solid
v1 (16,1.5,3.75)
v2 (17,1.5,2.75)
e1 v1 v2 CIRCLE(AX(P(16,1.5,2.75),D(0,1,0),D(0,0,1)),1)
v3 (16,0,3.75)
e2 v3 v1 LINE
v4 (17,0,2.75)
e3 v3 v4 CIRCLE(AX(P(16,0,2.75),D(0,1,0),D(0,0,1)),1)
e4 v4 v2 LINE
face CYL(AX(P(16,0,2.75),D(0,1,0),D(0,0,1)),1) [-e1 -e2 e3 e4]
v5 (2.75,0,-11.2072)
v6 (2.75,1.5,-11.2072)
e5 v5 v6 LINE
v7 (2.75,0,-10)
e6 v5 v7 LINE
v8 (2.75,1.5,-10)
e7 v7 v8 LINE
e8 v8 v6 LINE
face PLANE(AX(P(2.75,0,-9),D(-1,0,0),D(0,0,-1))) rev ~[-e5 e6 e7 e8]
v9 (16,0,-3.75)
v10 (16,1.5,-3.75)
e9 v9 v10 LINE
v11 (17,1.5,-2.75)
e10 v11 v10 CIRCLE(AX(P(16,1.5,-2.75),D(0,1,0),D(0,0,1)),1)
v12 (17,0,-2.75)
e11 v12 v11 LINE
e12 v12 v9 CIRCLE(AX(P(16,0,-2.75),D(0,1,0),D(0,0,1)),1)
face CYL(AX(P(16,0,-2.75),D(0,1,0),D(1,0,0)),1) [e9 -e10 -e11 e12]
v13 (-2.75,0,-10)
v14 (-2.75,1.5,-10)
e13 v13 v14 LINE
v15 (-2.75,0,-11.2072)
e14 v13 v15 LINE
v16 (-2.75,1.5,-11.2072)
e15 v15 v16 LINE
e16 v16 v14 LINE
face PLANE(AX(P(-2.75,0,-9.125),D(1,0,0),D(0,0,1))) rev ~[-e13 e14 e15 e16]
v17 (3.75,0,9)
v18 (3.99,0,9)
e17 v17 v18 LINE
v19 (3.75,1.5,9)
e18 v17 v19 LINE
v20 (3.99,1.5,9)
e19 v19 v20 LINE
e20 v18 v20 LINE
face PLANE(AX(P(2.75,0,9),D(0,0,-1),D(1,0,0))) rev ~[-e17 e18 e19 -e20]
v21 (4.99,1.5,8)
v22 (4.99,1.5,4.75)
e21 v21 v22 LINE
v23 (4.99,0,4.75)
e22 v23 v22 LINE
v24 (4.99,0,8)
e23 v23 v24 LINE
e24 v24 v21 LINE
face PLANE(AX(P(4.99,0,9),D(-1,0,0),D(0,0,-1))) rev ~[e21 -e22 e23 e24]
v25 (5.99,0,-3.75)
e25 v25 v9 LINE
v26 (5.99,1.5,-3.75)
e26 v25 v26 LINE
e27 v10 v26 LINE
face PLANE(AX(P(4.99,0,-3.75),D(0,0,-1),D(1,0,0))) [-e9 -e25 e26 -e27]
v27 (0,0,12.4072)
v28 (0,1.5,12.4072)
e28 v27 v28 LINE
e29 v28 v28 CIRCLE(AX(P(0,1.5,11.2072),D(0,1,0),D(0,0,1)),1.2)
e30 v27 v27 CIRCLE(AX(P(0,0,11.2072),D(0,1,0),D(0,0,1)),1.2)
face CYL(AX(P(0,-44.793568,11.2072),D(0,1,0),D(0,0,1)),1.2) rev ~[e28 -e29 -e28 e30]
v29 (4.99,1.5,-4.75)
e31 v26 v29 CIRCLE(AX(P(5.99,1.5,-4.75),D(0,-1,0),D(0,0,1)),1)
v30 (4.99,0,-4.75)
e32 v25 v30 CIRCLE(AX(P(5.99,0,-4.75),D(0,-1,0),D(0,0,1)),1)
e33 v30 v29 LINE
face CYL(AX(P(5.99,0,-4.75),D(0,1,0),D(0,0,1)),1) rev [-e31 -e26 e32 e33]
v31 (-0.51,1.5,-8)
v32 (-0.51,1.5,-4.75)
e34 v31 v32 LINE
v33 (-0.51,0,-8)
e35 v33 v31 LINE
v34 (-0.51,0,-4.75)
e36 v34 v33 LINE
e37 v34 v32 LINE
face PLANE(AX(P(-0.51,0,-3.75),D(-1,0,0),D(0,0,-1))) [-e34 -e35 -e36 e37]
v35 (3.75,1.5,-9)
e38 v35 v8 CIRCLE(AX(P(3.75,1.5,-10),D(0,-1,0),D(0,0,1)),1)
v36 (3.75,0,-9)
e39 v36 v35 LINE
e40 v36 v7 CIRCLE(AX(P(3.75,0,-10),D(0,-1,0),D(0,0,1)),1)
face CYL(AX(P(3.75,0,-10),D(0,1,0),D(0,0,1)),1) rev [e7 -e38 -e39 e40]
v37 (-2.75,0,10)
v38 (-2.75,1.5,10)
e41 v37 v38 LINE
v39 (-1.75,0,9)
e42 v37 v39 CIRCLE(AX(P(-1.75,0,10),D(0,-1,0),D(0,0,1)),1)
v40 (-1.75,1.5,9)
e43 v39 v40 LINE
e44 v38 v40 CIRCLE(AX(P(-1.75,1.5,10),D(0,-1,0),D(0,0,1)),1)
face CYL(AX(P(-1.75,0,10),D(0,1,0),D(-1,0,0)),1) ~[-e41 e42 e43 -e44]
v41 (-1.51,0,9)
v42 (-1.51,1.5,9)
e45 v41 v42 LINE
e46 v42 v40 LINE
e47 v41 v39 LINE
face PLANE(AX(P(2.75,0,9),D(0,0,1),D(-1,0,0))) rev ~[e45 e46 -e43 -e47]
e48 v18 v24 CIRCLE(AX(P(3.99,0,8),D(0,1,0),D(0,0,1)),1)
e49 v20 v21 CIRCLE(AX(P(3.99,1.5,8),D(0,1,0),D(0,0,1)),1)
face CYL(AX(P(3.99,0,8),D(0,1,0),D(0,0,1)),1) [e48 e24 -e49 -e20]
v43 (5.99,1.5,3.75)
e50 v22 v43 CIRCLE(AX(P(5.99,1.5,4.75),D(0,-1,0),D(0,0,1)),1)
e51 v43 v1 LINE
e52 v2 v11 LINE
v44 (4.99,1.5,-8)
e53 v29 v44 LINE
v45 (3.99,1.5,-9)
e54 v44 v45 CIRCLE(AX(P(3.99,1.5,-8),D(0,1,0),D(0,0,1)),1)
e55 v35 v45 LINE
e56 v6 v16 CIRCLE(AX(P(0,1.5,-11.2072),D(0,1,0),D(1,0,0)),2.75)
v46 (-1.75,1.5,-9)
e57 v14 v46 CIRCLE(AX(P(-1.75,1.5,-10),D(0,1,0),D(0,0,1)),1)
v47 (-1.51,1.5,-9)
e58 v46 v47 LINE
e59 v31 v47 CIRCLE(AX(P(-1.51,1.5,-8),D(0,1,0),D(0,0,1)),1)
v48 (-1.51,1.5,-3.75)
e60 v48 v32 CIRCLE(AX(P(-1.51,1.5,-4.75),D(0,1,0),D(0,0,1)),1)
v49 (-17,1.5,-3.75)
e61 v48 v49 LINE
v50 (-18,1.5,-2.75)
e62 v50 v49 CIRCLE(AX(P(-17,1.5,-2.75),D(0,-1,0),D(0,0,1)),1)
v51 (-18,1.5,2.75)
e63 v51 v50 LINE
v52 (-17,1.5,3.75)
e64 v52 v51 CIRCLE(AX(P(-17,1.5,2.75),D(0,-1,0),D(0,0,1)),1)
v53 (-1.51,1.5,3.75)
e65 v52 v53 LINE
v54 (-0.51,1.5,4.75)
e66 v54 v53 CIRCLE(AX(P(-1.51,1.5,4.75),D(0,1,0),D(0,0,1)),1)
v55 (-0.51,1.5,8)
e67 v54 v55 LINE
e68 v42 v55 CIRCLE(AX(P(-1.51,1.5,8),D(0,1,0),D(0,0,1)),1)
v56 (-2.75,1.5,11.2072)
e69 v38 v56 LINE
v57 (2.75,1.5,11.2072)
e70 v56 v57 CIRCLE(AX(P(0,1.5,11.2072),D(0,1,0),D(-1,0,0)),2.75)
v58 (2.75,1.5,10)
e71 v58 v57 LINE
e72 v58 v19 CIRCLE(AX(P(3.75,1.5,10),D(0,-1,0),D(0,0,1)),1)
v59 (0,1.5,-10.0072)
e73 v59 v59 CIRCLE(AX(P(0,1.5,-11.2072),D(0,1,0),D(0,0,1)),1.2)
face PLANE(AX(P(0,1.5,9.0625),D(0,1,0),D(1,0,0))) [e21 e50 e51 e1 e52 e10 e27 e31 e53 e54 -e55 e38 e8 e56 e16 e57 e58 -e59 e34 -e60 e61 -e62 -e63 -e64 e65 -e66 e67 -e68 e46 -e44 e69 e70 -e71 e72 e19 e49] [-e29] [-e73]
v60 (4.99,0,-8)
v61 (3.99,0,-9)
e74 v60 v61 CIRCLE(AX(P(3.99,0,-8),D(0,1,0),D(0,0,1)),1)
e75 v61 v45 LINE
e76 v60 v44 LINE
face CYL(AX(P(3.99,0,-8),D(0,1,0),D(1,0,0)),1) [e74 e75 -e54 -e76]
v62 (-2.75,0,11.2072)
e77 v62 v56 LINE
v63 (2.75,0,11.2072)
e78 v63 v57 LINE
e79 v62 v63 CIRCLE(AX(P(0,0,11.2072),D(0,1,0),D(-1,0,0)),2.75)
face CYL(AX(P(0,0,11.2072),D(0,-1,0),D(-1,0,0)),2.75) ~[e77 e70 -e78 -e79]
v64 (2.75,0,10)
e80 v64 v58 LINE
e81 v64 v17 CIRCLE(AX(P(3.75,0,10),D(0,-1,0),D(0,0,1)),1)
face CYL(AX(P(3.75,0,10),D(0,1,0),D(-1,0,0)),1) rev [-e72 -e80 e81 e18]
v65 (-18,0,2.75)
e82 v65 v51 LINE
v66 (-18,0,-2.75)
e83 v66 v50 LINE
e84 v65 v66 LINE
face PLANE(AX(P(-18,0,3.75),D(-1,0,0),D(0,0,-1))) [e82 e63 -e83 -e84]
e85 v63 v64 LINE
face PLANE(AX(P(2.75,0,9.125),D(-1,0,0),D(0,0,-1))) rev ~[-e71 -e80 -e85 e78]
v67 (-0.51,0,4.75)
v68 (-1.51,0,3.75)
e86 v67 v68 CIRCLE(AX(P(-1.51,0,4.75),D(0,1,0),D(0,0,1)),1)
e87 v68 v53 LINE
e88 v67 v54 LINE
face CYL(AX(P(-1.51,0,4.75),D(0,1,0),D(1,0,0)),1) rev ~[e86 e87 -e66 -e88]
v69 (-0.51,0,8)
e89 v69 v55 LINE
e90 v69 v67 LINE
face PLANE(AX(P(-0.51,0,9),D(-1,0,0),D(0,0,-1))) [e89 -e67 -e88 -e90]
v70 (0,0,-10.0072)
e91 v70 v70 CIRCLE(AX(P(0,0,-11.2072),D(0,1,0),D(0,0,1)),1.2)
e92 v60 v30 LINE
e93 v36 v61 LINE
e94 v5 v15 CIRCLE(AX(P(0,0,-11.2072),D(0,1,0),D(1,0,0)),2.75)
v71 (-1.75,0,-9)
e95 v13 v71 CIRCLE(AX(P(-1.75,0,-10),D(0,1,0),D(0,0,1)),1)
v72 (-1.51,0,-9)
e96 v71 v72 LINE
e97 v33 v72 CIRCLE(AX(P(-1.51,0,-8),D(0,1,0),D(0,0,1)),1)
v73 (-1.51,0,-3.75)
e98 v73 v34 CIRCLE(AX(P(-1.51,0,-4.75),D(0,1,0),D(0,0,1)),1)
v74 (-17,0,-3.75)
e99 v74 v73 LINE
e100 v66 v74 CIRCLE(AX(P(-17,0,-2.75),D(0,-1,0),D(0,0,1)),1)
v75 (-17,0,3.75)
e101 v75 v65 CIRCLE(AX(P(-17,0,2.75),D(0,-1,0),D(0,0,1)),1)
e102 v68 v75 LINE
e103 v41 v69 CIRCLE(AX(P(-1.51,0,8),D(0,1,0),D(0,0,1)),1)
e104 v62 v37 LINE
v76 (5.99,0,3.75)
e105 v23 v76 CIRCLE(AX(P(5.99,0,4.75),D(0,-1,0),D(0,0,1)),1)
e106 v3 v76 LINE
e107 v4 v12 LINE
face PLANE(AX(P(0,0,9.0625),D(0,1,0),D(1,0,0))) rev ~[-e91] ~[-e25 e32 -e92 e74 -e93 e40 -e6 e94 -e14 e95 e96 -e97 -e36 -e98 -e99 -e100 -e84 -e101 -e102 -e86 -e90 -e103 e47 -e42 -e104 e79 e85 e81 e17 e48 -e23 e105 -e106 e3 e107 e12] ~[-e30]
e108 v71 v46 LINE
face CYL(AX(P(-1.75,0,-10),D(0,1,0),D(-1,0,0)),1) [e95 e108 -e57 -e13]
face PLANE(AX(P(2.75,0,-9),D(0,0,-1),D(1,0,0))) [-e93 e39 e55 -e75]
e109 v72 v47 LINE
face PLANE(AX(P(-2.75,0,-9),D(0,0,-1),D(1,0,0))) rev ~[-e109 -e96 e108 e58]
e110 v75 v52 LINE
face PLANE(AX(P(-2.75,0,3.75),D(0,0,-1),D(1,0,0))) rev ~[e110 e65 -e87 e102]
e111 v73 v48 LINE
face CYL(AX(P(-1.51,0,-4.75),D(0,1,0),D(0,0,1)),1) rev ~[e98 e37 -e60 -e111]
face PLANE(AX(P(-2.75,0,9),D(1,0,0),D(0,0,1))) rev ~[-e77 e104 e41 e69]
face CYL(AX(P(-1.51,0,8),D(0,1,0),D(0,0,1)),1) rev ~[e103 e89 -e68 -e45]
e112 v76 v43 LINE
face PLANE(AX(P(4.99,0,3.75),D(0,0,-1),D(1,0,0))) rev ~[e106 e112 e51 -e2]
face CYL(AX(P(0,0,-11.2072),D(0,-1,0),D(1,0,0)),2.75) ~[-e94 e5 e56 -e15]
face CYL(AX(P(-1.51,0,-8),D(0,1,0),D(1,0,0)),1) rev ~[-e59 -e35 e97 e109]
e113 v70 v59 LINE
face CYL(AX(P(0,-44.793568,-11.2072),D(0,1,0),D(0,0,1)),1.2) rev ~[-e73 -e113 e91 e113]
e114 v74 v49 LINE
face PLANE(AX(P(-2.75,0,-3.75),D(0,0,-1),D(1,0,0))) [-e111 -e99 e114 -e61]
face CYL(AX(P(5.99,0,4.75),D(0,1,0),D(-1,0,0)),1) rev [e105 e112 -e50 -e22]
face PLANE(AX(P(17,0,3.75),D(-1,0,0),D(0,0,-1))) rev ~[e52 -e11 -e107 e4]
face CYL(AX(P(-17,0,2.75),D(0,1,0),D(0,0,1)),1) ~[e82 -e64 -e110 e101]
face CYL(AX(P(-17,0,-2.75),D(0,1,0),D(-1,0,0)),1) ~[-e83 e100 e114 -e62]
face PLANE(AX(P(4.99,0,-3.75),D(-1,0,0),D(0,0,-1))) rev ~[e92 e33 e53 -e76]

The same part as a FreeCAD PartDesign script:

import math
import FreeCAD as App
import Part
import Sketcher
from FreeCAD import Vector
Q = App.Units.Quantity


def edges_at(feature, points):
    """Names of the edges that pass closest to the given points."""
    edges = feature.Shape.Edges
    near = lambda p: min(range(len(edges)), key=lambda i: edges[i].distToShape(Part.Vertex(*p))[0])
    return sorted({f"Edge{near(p) + 1}" for p in points})

doc = App.newDocument("Part")
body = doc.addObject("PartDesign::Body", "Body")

# Sketch on XZ plane
sketch1 = doc.addObject("Sketcher::SketchObject", "Sketch")
body.addObject(sketch1)
sketch1.AttachmentSupport = (doc.XZ_Plane, [""])
sketch1.MapMode = "FlatFace"
sketch1.addGeometry([
    Part.LineSegment(Vector(-0.5, 3.8, 0), Vector(-0.5, 9, 0)),  # 0
    Part.LineSegment(Vector(-0.5, 9, 0), Vector(-2.8, 9, 0)),  # 1
    Part.LineSegment(Vector(-2.8, 9, 0), Vector(-2.8, 11.2, 0)),  # 2
    Part.ArcOfCircle(Part.Circle(Vector(0, 11.2, 0), Vector(0, 0, 1), 2.8), math.radians(0), math.radians(180)),  # 3
    Part.LineSegment(Vector(2.8, 11.2, 0), Vector(2.8, 9, 0)),  # 4
    Part.LineSegment(Vector(2.8, 9, 0), Vector(5, 9, 0)),  # 5
    Part.LineSegment(Vector(5, 9, 0), Vector(5, 3.8, 0)),  # 6
    Part.LineSegment(Vector(5, 3.8, 0), Vector(17, 3.8, 0)),  # 7
    Part.LineSegment(Vector(17, 3.8, 0), Vector(17, -3.8, 0)),  # 8
    Part.LineSegment(Vector(17, -3.8, 0), Vector(5, -3.8, 0)),  # 9
    Part.LineSegment(Vector(5, -3.8, 0), Vector(5, -9, 0)),  # 10
    Part.LineSegment(Vector(5, -9, 0), Vector(2.8, -9, 0)),  # 11
    Part.LineSegment(Vector(2.8, -9, 0), Vector(2.8, -11.2, 0)),  # 12
    Part.ArcOfCircle(Part.Circle(Vector(0, -11.2, 0), Vector(0, 0, 1), 2.8), math.radians(180), math.radians(360)),  # 13
    Part.LineSegment(Vector(-2.8, -11.2, 0), Vector(-2.8, -9, 0)),  # 14
    Part.LineSegment(Vector(-2.8, -9, 0), Vector(-0.5, -9, 0)),  # 15
    Part.LineSegment(Vector(-0.5, -9, 0), Vector(-0.5, -3.8, 0)),  # 16
    Part.LineSegment(Vector(-0.5, -3.8, 0), Vector(-18, -3.8, 0)),  # 17
    Part.LineSegment(Vector(-18, -3.8, 0), Vector(-18, 3.8, 0)),  # 18
    Part.LineSegment(Vector(-18, 3.8, 0), Vector(-0.5, 3.8, 0)),  # 19
], False)
sketch1.addConstraint([
    Sketcher.Constraint("Coincident", 0, 2, 1, 1),
    Sketcher.Constraint("Coincident", 1, 2, 2, 1),
    Sketcher.Constraint("Tangent", 2, 2, 3, 2),
    Sketcher.Constraint("Tangent", 3, 1, 4, 1),
    Sketcher.Constraint("Coincident", 4, 2, 5, 1),
    Sketcher.Constraint("Coincident", 5, 2, 6, 1),
    Sketcher.Constraint("Coincident", 6, 2, 7, 1),
    Sketcher.Constraint("Coincident", 7, 2, 8, 1),
    Sketcher.Constraint("Coincident", 8, 2, 9, 1),
    Sketcher.Constraint("Coincident", 9, 2, 10, 1),
    Sketcher.Constraint("Coincident", 10, 2, 11, 1),
    Sketcher.Constraint("Coincident", 11, 2, 12, 1),
    Sketcher.Constraint("Tangent", 12, 2, 13, 2),
    Sketcher.Constraint("Tangent", 13, 1, 14, 1),
    Sketcher.Constraint("Coincident", 14, 2, 15, 1),
    Sketcher.Constraint("Coincident", 15, 2, 16, 1),
    Sketcher.Constraint("Coincident", 16, 2, 17, 1),
    Sketcher.Constraint("Coincident", 17, 2, 18, 1),
    Sketcher.Constraint("Coincident", 18, 2, 19, 1),
    Sketcher.Constraint("Coincident", 19, 2, 0, 1),
    Sketcher.Constraint("Vertical", 0),
    Sketcher.Constraint("Horizontal", 1),
    Sketcher.Constraint("Vertical", 2),
    Sketcher.Constraint("Vertical", 4),
    Sketcher.Constraint("Horizontal", 5),
    Sketcher.Constraint("Vertical", 6),
    Sketcher.Constraint("Horizontal", 7),
    Sketcher.Constraint("Vertical", 8),
    Sketcher.Constraint("Horizontal", 9),
    Sketcher.Constraint("Vertical", 10),
    Sketcher.Constraint("Horizontal", 11),
    Sketcher.Constraint("Vertical", 12),
    Sketcher.Constraint("Vertical", 14),
    Sketcher.Constraint("Horizontal", 15),
    Sketcher.Constraint("Vertical", 16),
    Sketcher.Constraint("Horizontal", 17),
    Sketcher.Constraint("Vertical", 18),
    Sketcher.Constraint("Horizontal", 19),
    Sketcher.Constraint("Equal", 3, 13),
    Sketcher.Constraint("Symmetric", 3, 3, 13, 3, -1, 1),
    Sketcher.Constraint("Symmetric", 1, 2, 4, 2, -2),
    Sketcher.Constraint("Symmetric", 6, 2, 9, 2, -1),
    Sketcher.Constraint("Symmetric", 0, 2, 15, 2, -1),
    Sketcher.Constraint("Horizontal", 11, 2, 14, 2),
    Sketcher.Constraint("Horizontal", 9, 2, 16, 2),
    Sketcher.Constraint("Horizontal", 7, 2, 18, 2),
    Sketcher.Constraint("Equal", 1, 5),
    Sketcher.Constraint("Radius", 3, Q("2.75 mm")),
    Sketcher.Constraint("DistanceY", 8, 2, 8, 1, Q("7.5 mm")),
    Sketcher.Constraint("DistanceY", -1, 1, 0, 2, Q("9 mm")),
    Sketcher.Constraint("DistanceX", -1, 1, 7, 2, Q("17 mm")),
    Sketcher.Constraint("DistanceX", 17, 2, -1, 1, Q("18 mm")),
    Sketcher.Constraint("DistanceX", 1, 2, 1, 1, Q("2.24 mm")),
    Sketcher.Constraint("DistanceY", 2, 1, 2, 2, Q("2.2072 mm")),
])
pad1 = doc.addObject("PartDesign::Pad", "Pad")
body.addObject(pad1)
pad1.Profile = sketch1
pad1.Length = 1.5
pad1.Reversed = True

# Sketch on XZ plane
sketch2 = doc.addObject("Sketcher::SketchObject", "Sketch001")
body.addObject(sketch2)
sketch2.AttachmentSupport = (doc.XZ_Plane, [""])
sketch2.MapMode = "FlatFace"
sketch2.addGeometry([
    Part.Circle(Vector(0, -11.2, 0), Vector(0, 0, 1), 1.2),
    Part.Circle(Vector(0, 11.2, 0), Vector(0, 0, 1), 1.2),
], False)
sketch2.addConstraint([
    Sketcher.Constraint("Equal", 0, 1),
    Sketcher.Constraint("Symmetric", 0, 3, 1, 3, -1, 1),
    Sketcher.Constraint("PointOnObject", 0, 3, -2),
    Sketcher.Constraint("Diameter", 0, Q("2.4 mm")),
    Sketcher.Constraint("DistanceY", 0, 3, -1, 1, Q("11.2072 mm")),
])
doc.recompute()
hole = doc.addObject("PartDesign::Hole", "Hole")
body.addObject(hole)
hole.Profile = sketch2
hole.ThreadType = "None"
hole.Diameter = 2.4
hole.DepthType = "ThroughAll"
doc.recompute()

fillet = doc.addObject("PartDesign::Fillet", "Fillet")
body.addObject(fillet)
fillet.Base = (hole, edges_at(hole, [
    (-0.51, 0.75, 3.75),
    (-18, 0.75, 3.75),
    (-18, 0.75, -3.75),
    (-0.51, 0.75, -3.75),
    (-0.51, 0.75, -9),
    (-2.75, 0.75, -9),
    (2.75, 0.75, -9),
    (4.99, 0.75, -9),
    (4.99, 0.75, -3.75),
    (17, 0.75, -3.75),
    (17, 0.75, 3.75),
    (4.99, 0.75, 3.75),
    (4.99, 0.75, 9),
    (2.75, 0.75, 9),
    (-2.75, 0.75, 9),
    (-0.51, 0.75, 9),
]))
fillet.Radius = 1

doc.recompute()
